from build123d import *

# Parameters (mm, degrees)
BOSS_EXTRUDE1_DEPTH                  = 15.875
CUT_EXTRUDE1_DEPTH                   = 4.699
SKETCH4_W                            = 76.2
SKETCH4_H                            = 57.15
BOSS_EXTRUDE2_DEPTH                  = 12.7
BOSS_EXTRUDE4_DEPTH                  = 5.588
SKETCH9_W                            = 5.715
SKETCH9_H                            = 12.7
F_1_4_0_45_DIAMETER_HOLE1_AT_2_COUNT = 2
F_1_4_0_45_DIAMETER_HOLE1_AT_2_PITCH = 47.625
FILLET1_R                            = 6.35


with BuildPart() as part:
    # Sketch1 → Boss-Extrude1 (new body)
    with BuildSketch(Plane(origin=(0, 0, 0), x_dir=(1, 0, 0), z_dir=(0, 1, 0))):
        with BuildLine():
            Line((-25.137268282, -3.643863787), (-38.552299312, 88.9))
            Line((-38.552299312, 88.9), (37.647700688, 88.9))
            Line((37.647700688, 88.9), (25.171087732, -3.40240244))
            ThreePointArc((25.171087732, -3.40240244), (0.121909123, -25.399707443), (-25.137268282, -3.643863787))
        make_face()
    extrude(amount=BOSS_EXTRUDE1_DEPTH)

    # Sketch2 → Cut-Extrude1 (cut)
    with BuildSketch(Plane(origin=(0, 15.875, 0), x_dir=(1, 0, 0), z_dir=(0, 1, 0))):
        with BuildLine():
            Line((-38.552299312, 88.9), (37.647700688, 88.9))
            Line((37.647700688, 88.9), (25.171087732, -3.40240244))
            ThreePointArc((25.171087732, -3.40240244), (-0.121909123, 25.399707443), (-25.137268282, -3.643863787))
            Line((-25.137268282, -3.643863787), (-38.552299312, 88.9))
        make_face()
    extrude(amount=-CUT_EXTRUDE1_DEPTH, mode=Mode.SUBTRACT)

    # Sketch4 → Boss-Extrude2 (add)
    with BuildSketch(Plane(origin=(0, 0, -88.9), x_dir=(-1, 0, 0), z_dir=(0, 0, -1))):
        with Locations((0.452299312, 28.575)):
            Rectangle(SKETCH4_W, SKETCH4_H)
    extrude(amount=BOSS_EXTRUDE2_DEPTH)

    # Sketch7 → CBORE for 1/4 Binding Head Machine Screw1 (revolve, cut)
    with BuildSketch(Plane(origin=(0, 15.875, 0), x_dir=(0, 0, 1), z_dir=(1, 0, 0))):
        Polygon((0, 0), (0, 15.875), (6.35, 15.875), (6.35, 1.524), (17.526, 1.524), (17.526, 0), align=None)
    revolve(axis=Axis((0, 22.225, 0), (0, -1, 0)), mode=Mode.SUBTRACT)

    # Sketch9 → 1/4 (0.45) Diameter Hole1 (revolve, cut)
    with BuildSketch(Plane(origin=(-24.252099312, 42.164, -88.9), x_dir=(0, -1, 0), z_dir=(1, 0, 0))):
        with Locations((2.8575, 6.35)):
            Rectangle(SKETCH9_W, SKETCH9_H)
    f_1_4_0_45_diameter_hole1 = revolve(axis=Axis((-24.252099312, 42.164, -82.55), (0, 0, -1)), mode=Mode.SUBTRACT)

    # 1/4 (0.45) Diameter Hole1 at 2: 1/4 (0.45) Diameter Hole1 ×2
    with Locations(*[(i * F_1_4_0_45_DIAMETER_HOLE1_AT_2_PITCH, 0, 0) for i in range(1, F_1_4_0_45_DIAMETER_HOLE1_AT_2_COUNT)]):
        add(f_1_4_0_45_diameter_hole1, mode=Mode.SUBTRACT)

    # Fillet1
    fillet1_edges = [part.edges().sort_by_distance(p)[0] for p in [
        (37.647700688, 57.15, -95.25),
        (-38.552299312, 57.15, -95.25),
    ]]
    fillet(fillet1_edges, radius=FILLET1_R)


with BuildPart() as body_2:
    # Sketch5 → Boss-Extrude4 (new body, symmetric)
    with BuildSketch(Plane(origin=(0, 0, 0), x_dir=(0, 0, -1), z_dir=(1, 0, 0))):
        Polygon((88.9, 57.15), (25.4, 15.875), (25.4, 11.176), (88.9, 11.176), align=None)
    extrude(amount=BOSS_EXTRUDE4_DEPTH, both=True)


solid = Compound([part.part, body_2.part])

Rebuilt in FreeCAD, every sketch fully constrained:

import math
import FreeCAD as App
import Part
import Sketcher

V = App.Vector
Q = App.Units.Quantity


def edges_at(feature, points):
    """Names of the edges that pass closest to the given points."""
    edges = feature.Shape.Edges
    near = lambda p: min(range(len(edges)), key=lambda i: edges[i].distToShape(Part.Vertex(*p))[0])
    return sorted({f"Edge{near(p) + 1}" for p in points})


def add_polygon(sketch, points):
    """Adds a closed chain of lines whose ends are joined by coincident constraints."""
    first, n = sketch.GeometryCount, len(points)
    for a, b in zip(points, points[1:] + points[:1]):
        sketch.addGeometry(Part.LineSegment(App.Vector(*a, 0), App.Vector(*b, 0)), False)
    for i in range(n):
        sketch.addConstraint(Sketcher.Constraint("Coincident", first + i, 2, first + (i + 1) % n, 1))

doc = App.newDocument("Part")
params = doc.addObject("Spreadsheet::Sheet", "Params")
for row, (alias, value) in enumerate([
    ("sketch1_radius", "1 in"),
    ("sketch1_width", "3 in"),
    ("pad1_length", "0.625 in"),
    ("sketch2_radius", "1 in"),
    ("sketch2_width", "3 in"),
    ("pocket1_length", "0.185 in"),
    ("sketch3_width", "3 in"),
    ("sketch3_height", "2.25 in"),
    ("pad2_length", "0.5 in"),
    ("sketch4_width", "0.06 in"),
    ("sketch4_height", "0.69 in"),
    ("sketch4_height2", "0.44 in"),
    ("sketch4_width2", "0.625 in"),
    ("groove_angle", "360 deg"),
    ("sketch5_height", "0.5 in"),
    ("sketch5_width", "0.225 in"),
    ("groove2_angle", "360 deg"),
    ("linearpattern_pitch", "1.875 in"),
    ("fillet_radius", "0.25 in"),
    ("sketch6_height", "2.5 in"),
    ("sketch6_width", "1.81 in"),
    ("sketch6_width2", "0.185 in"),
    ("pad3_length", "0.44 in"),
], start=1):
    params.set(f"A{row}", alias)
    params.set(f"B{row}", "=" + value)
    params.setAlias(f"B{row}", alias)

body = doc.addObject("PartDesign::Body", "Body")

# Sketch on XZ plane
sketch1 = body.newObject("Sketcher::SketchObject", "Sketch")
sketch1.AttachmentSupport = (doc.getObject("XZ_Plane"), [""])
sketch1.MapMode = "FlatFace"
sketch1.addGeometry([
    Part.LineSegment(V(-38.552299, -88.9, 0), V(-25.137268, 3.643864, 0)),
    Part.ArcOfCircle(Part.Circle(V(0, 0, 0), V(0, 0, 1), 25.4), math.radians(7.698073), math.radians(171.751935)),
    Part.LineSegment(V(25.171088, 3.402402, 0), V(37.647701, -88.9, 0)),
    Part.LineSegment(V(37.647701, -88.9, 0), V(-38.552299, -88.9, 0)),
], False)
sketch1.addConstraint([
    Sketcher.Constraint("Tangent", 0, 2, 1, 2),
    Sketcher.Constraint("Tangent", 1, 1, 2, 1),
    Sketcher.Constraint("Coincident", 2, 2, 3, 1),
    Sketcher.Constraint("Coincident", 3, 2, 0, 1),
    Sketcher.Constraint("Horizontal", 3),
    Sketcher.Constraint("Coincident", 1, 3, -1, 1),
    Sketcher.Constraint("Radius", 1, Q("1 in")),
    Sketcher.Constraint("DistanceX", 3, 2, 3, 1, Q("3 in")),
    Sketcher.Constraint("DistanceY", 2, 2, -1, 1, Q("3.5 in")),
    Sketcher.Constraint("DistanceX", -1, 1, 2, 2, 37.647701),
])
sketch1.setExpression("Constraints[6]", "Params.sketch1_radius")
sketch1.setExpression("Constraints[7]", "Params.sketch1_width")
pad1 = body.newObject("PartDesign::Pad", "Pad")
pad1.Profile = sketch1
pad1.setExpression("Length", "Params.pad1_length")
pad1.Reversed = True

# Sketch on XZ plane
sketch2 = body.newObject("Sketcher::SketchObject", "Sketch001")
sketch2.AttachmentSupport = (doc.getObject("XZ_Plane"), [""])
sketch2.MapMode = "FlatFace"
sketch2.AttachmentOffset = App.Placement(V(0, 0, -0.625 * 25.4), App.Rotation())
sketch2.addGeometry([
    Part.LineSegment(V(37.647701, -88.9, 0), V(-38.552299, -88.9, 0)),
    Part.LineSegment(V(-38.552299, -88.9, 0), V(-25.137268, 3.643864, 0)),
    Part.ArcOfCircle(Part.Circle(V(0, 0, 0), V(0, 0, 1), 25.4), math.radians(171.751935), math.radians(367.698073)),
    Part.LineSegment(V(25.171088, 3.402402, 0), V(37.647701, -88.9, 0)),
], False)
sketch2.addConstraint([
    Sketcher.Constraint("Coincident", 0, 2, 1, 1),
    Sketcher.Constraint("Tangent", 1, 2, 2, 1),
    Sketcher.Constraint("Tangent", 2, 2, 3, 1),
    Sketcher.Constraint("Coincident", 3, 2, 0, 1),
    Sketcher.Constraint("Horizontal", 0),
    Sketcher.Constraint("Coincident", 2, 3, -1, 1),
    Sketcher.Constraint("Radius", 2, Q("1 in")),
    Sketcher.Constraint("DistanceX", 0, 2, 0, 1, Q("3 in")),
    Sketcher.Constraint("DistanceY", 0, 2, -1, 1, Q("3.5 in")),
    Sketcher.Constraint("DistanceX", 0, 2, -1, 1, 38.552299),
])
sketch2.setExpression("Constraints[6]", "Params.sketch2_radius")
sketch2.setExpression("Constraints[7]", "Params.sketch2_width")
pocket1 = body.newObject("PartDesign::Pocket", "Pocket")
pocket1.Profile = sketch2
pocket1.setExpression("Length", "Params.pocket1_length")
pocket1.Reversed = True

# Sketch on XY plane
sketch3 = body.newObject("Sketcher::SketchObject", "Sketch002")
sketch3.AttachmentSupport = (doc.getObject("XY_Plane"), [""])
sketch3.MapMode = "FlatFace"
sketch3.AttachmentOffset = App.Placement(V(0, 0, -3.5 * 25.4), App.Rotation())
add_polygon(sketch3, [(37.647701, 57.15), (37.647701, 0), (-38.552299, 0), (-38.552299, 57.15)])  # lines 0-3
sketch3.addConstraint([
    Sketcher.Constraint("Vertical", 0),
    Sketcher.Constraint("Horizontal", 1),
    Sketcher.Constraint("Vertical", 2),
    Sketcher.Constraint("Horizontal", 3),
    Sketcher.Constraint("PointOnObject", 0, 2, -1),
    Sketcher.Constraint("DistanceX", 1, 2, 1, 1, Q("3 in")),
    Sketcher.Constraint("DistanceY", 0, 2, 0, 1, Q("2.25 in")),
    Sketcher.Constraint("DistanceX", -1, 1, 0, 2, 37.647701),
])
sketch3.setExpression("Constraints[9]", "Params.sketch3_width")
sketch3.setExpression("Constraints[10]", "Params.sketch3_height")
pad2 = body.newObject("PartDesign::Pad", "Pad001")
pad2.Profile = sketch3
pad2.setExpression("Length", "Params.pad2_length")
pad2.Reversed = True

# Sketch on YZ plane
sketch4 = body.newObject("Sketcher::SketchObject", "Sketch003")
sketch4.AttachmentSupport = (doc.getObject("YZ_Plane"), [""])
sketch4.MapMode = "FlatFace"
add_polygon(sketch4, [(0, 0), (15.875, 0), (15.875, 17.526), (14.351, 17.526), (14.351, 6.35), (0, 6.35)])  # lines 0-5
sketch4.addConstraint([
    Sketcher.Constraint("Horizontal", 0),
    Sketcher.Constraint("Vertical", 1),
    Sketcher.Constraint("Horizontal", 2),
    Sketcher.Constraint("Vertical", 3),
    Sketcher.Constraint("Horizontal", 4),
    Sketcher.Constraint("Vertical", 5),
    Sketcher.Constraint("Coincident", 5, 2, -1, 1),
    Sketcher.Constraint("DistanceX", 2, 2, 2, 1, Q("0.06 in")),
    Sketcher.Constraint("DistanceY", 1, 1, 1, 2, Q("0.69 in")),
    Sketcher.Constraint("DistanceY", 3, 2, 3, 1, Q("0.44 in")),
    Sketcher.Constraint("DistanceX", 0, 1, 0, 2, Q("0.625 in")),
])
sketch4.setExpression("Constraints[13]", "Params.sketch4_width")
sketch4.setExpression("Constraints[14]", "Params.sketch4_height")
sketch4.setExpression("Constraints[15]", "Params.sketch4_height2")
sketch4.setExpression("Constraints[16]", "Params.sketch4_width2")
groove = body.newObject("PartDesign::Groove", "Groove")
groove.Profile = sketch4
groove.ReferenceAxis = (sketch4, ["H_Axis"])
groove.setExpression("Angle", "Params.groove_angle")

# Sketch on YZ plane
sketch5 = body.newObject("Sketcher::SketchObject", "Sketch004")
sketch5.AttachmentSupport = (doc.getObject("YZ_Plane"), [""])
sketch5.MapMode = "FlatFace"
sketch5.AttachmentOffset = App.Placement(V(0, 0, -24.252099), App.Rotation())
add_polygon(sketch5, [(42.164, -101.6), (42.164, -88.9), (36.449, -88.9), (36.449, -101.6)])  # lines 0-3
sketch5.addGeometry(Part.LineSegment(V(42.164, -88.9, 0), V(42.164, -101.6, 0)), True)  # axis
sketch5.addConstraint([
    Sketcher.Constraint("Vertical", 0),
    Sketcher.Constraint("Horizontal", 1),
    Sketcher.Constraint("Vertical", 2),
    Sketcher.Constraint("Horizontal", 3),
    Sketcher.Constraint("Vertical", 4),
    Sketcher.Constraint("Coincident", 4, 1, 0, 2),
    Sketcher.Constraint("Horizontal", 2, 2, 4, 2),
    Sketcher.Constraint("DistanceY", 0, 1, 0, 2, Q("0.5 in")),
    Sketcher.Constraint("DistanceY", 2, 2, -1, 1, Q("4 in")),
    Sketcher.Constraint("DistanceX", 1, 2, 1, 1, Q("0.225 in")),
    Sketcher.Constraint("DistanceX", -1, 1, 0, 2, Q("1.66 in")),
])
sketch5.setExpression("Constraints[11]", "Params.sketch5_height")
sketch5.setExpression("Constraints[13]", "Params.sketch5_width")
groove2 = body.newObject("PartDesign::Groove", "Groove001")
groove2.Profile = sketch5
groove2.ReferenceAxis = (sketch5, ["Axis0"])
groove2.setExpression("Angle", "Params.groove2_angle")
doc.recompute()

linearpattern = body.newObject("PartDesign::LinearPattern", "LinearPattern")
linearpattern.Originals = [groove2]
linearpattern.Direction = (doc.getObject("X_Axis"), [""])
linearpattern.Mode = "offset"
linearpattern.setExpression("Offset", "Params.linearpattern_pitch")
linearpattern.Occurrences = 2
body.Tip = linearpattern
doc.recompute()

fillet = body.newObject("PartDesign::Fillet", "Fillet")
fillet.Base = (linearpattern, edges_at(linearpattern, [(37.648, 57.15, -95.25), (-38.552, 57.15, -95.25)]))
fillet.setExpression("Radius", "Params.fillet_radius")
body2 = doc.addObject("PartDesign::Body", "Body001")

# Sketch on YZ plane
sketch6 = body2.newObject("Sketcher::SketchObject", "Sketch005")
sketch6.AttachmentSupport = (doc.getObject("YZ_Plane001"), [""])
sketch6.MapMode = "FlatFace"
add_polygon(sketch6, [(57.15, -88.9), (15.875, -25.4), (11.176, -25.4), (11.176, -88.9)])  # lines 0-3
sketch6.addConstraint([
    Sketcher.Constraint("Horizontal", 1),
    Sketcher.Constraint("Vertical", 2),
    Sketcher.Constraint("Horizontal", 3),
    Sketcher.Constraint("DistanceY", 2, 2, 2, 1, Q("2.5 in")),
    Sketcher.Constraint("DistanceY", 0, 2, -1, 1, Q("1 in")),
    Sketcher.Constraint("DistanceX", 3, 1, 3, 2, Q("1.81 in")),
    Sketcher.Constraint("DistanceX", 1, 2, 1, 1, Q("0.185 in")),
    Sketcher.Constraint("DistanceX", -1, 1, 1, 2, Q("0.44 in")),
])
sketch6.setExpression("Constraints[7]", "Params.sketch6_height")
sketch6.setExpression("Constraints[9]", "Params.sketch6_width")
sketch6.setExpression("Constraints[10]", "Params.sketch6_width2")
pad3 = body2.newObject("PartDesign::Pad", "Pad002")
pad3.Profile = sketch6
pad3.setExpression("Length", "Params.pad3_length")
pad3.Midplane = True

doc.recompute()
